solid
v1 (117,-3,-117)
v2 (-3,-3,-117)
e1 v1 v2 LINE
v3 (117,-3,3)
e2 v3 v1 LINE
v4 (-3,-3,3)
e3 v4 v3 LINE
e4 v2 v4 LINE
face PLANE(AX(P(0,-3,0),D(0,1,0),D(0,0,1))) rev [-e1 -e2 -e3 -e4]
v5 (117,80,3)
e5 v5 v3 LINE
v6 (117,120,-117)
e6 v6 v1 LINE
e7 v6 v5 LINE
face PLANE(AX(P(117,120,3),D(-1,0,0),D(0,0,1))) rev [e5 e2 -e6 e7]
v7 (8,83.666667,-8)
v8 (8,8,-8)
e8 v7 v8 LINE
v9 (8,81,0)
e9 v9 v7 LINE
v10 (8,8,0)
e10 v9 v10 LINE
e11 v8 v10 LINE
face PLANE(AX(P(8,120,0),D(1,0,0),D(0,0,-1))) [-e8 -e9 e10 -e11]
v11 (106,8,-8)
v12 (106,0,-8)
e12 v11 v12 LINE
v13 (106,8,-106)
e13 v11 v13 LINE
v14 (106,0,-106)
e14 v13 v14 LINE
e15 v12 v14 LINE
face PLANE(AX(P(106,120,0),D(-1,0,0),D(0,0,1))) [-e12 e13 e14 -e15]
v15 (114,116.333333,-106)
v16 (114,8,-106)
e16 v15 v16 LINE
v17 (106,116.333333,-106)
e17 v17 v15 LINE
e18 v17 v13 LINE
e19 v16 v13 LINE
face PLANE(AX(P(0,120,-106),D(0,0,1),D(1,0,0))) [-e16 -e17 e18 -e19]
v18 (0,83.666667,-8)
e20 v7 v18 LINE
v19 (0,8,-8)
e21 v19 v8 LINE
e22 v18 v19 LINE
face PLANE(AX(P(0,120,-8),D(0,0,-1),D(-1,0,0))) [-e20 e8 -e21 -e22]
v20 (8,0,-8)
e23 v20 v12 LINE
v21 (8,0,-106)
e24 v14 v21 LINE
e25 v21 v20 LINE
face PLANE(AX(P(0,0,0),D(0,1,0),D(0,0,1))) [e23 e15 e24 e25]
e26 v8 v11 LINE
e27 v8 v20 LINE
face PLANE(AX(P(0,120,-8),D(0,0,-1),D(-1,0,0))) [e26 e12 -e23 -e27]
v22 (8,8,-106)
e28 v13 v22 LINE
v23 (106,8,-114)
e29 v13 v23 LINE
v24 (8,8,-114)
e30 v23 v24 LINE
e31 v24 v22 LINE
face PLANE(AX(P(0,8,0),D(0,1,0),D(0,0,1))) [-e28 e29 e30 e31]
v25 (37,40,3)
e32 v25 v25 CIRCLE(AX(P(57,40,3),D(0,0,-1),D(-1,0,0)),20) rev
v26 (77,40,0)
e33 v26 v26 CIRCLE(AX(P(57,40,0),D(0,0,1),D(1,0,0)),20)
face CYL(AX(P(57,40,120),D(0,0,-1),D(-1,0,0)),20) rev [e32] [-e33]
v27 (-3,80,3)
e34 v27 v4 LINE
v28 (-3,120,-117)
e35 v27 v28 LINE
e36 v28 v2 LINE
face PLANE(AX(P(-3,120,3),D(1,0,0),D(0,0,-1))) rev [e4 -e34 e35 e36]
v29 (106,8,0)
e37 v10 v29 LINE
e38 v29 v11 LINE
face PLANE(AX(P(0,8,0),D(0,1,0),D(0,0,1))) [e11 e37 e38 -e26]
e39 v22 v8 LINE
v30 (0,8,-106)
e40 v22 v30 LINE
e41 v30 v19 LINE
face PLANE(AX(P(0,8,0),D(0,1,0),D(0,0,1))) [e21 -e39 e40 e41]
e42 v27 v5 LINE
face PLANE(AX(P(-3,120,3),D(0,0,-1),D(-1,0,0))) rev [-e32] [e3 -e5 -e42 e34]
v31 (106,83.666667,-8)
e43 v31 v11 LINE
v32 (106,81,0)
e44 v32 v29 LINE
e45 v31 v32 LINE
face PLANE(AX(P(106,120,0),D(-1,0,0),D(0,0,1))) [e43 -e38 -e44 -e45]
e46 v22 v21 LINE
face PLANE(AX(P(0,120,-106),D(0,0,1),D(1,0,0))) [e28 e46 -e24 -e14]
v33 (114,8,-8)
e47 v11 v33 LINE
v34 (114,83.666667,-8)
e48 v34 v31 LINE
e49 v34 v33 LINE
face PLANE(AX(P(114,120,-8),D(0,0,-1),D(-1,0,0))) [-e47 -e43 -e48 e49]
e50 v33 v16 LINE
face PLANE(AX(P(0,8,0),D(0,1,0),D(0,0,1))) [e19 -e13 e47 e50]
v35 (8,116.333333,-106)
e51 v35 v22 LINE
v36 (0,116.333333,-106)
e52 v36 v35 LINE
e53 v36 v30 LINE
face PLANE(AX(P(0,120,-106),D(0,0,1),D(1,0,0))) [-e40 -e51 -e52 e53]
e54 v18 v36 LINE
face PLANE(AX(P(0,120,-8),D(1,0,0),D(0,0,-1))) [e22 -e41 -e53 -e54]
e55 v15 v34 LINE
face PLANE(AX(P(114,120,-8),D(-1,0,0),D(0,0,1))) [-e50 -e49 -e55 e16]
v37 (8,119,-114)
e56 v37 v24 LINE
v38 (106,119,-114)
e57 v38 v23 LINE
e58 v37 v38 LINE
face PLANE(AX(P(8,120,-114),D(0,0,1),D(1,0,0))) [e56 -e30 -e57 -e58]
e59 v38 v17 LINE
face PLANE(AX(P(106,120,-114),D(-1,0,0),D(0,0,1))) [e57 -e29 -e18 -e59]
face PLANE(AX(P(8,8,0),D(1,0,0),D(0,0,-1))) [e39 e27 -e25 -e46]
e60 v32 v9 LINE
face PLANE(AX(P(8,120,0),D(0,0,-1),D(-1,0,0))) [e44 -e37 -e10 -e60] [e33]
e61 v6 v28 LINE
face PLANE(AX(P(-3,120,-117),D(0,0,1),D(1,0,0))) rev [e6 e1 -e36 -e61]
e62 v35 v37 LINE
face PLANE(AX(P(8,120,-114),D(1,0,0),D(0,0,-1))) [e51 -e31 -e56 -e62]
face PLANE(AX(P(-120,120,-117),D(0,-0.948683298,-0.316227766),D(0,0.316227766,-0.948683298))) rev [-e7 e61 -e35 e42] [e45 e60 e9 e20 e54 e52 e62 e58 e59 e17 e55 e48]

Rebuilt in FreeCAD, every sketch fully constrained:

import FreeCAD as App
import Part
import Sketcher
Q = App.Units.Quantity


def add_polygon(sketch, points):
    """Adds a closed chain of lines whose ends are joined by coincident constraints."""
    first, n = sketch.GeometryCount, len(points)
    for a, b in zip(points, points[1:] + points[:1]):
        sketch.addGeometry(Part.LineSegment(App.Vector(*a, 0), App.Vector(*b, 0)), False)
    for i in range(n):
        sketch.addConstraint(Sketcher.Constraint("Coincident", first + i, 2, first + (i + 1) % n, 1))

doc = App.newDocument("Part")
body = doc.addObject("PartDesign::Body", "Body")

# Sketch on XZ plane
sketch1 = body.newObject("Sketcher::SketchObject", "Sketch")
sketch1.AttachmentSupport = (doc.getObject("XZ_Plane"), [""])
sketch1.MapMode = "FlatFace"
add_polygon(sketch1, [(-3, -117), (-3, 3), (117, 3), (117, -117)])  # lines 0-3
add_polygon(sketch1, [(106, 0), (8, 0), (8, -8), (0, -8), (0, -106), (8, -106), (8, -114), (106, -114), (106, -106), (114, -106), (114, -8), (106, -8)])  # lines 4-15
sketch1.addConstraint([
    Sketcher.Constraint("Vertical", 0),
    Sketcher.Constraint("Horizontal", 1),
    Sketcher.Constraint("Vertical", 2),
    Sketcher.Constraint("Horizontal", 3),
    Sketcher.Constraint("Horizontal", 4),
    Sketcher.Constraint("Vertical", 5),
    Sketcher.Constraint("Horizontal", 6),
    Sketcher.Constraint("Vertical", 7),
    Sketcher.Constraint("Horizontal", 8),
    Sketcher.Constraint("Vertical", 9),
    Sketcher.Constraint("Horizontal", 10),
    Sketcher.Constraint("Vertical", 11),
    Sketcher.Constraint("Horizontal", 12),
    Sketcher.Constraint("Vertical", 13),
    Sketcher.Constraint("Horizontal", 14),
    Sketcher.Constraint("Vertical", 15),
    Sketcher.Constraint("PointOnObject", 4, 2, -1),
    Sketcher.Constraint("PointOnObject", 6, 2, -2),
    Sketcher.Constraint("Horizontal", 8, 2, 11, 2),
    Sketcher.Constraint("Horizontal", 6, 2, 13, 2),
    Sketcher.Constraint("Vertical", 5, 2, 8, 2),
    Sketcher.Constraint("Vertical", 11, 2, 14, 2),
    Sketcher.Constraint("Equal", 8, 12),
    Sketcher.Constraint("Equal", 3, 0),
    Sketcher.Constraint("Equal", 14, 5),
    Sketcher.Constraint("Equal", 10, 7),
    Sketcher.Constraint("Equal", 5, 9),
    Sketcher.Constraint("DistanceX", 1, 1, 1, 2, Q("120 mm")),
    Sketcher.Constraint("DistanceX", 4, 2, 4, 1, Q("98 mm")),
    Sketcher.Constraint("DistanceX", 6, 2, 6, 1, Q("8 mm")),
    Sketcher.Constraint("DistanceX", 0, 2, -1, 1, Q("3 mm")),
    Sketcher.Constraint("DistanceY", -1, 1, 0, 2, Q("3 mm")),
])
pad1 = body.newObject("PartDesign::Pad", "Pad")
pad1.Profile = sketch1
pad1.Length = 120
pad1.Reversed = True

# Sketch on YZ plane
sketch2 = body.newObject("Sketcher::SketchObject", "Sketch001")
sketch2.AttachmentSupport = (doc.getObject("YZ_Plane"), [""])
sketch2.MapMode = "FlatFace"
add_polygon(sketch2, [(80, 3), (120, -117), (120, 3)])  # lines 0-2
sketch2.addConstraint([
    Sketcher.Constraint("Vertical", 1),
    Sketcher.Constraint("Horizontal", 2),
    Sketcher.Constraint("DistanceX", 2, 2, 2, 1, Q("40 mm")),
    Sketcher.Constraint("DistanceY", 1, 1, 1, 2, Q("120 mm")),
    Sketcher.Constraint("DistanceX", -1, 1, 0, 2, Q("120 mm")),
    Sketcher.Constraint("DistanceY", 0, 2, -1, 1, Q("117 mm")),
])
pocket1 = body.newObject("PartDesign::Pocket", "Pocket")
pocket1.Profile = sketch2
pocket1.Type = "ThroughAll"
pocket1.Midplane = True

# Sketch on XY plane
sketch3 = body.newObject("Sketcher::SketchObject", "Sketch002")
sketch3.AttachmentSupport = (doc.getObject("XY_Plane"), [""])
sketch3.MapMode = "FlatFace"
sketch3.addGeometry(Part.Circle(App.Vector(57, 40, 0), App.Vector(0, 0, 1), 20), False)
sketch3.addConstraint([
    Sketcher.Constraint("Diameter", 0, Q("40 mm")),
    Sketcher.Constraint("DistanceX", -1, 1, 0, 3, Q("57 mm")),
    Sketcher.Constraint("DistanceY", -1, 1, 0, 3, Q("40 mm")),
])
pocket2 = body.newObject("PartDesign::Pocket", "Pocket001")
pocket2.Profile = sketch3
pocket2.Length = 120
pocket2.Reversed = True

# Sketch on XZ plane
sketch4 = body.newObject("Sketcher::SketchObject", "Sketch003")
sketch4.AttachmentSupport = (doc.getObject("XZ_Plane"), [""])
sketch4.MapMode = "FlatFace"
add_polygon(sketch4, [(-3, -117), (-3, 3), (117, 3), (117, -117)])  # lines 0-3
sketch4.addConstraint([
    Sketcher.Constraint("Vertical", 0),
    Sketcher.Constraint("Horizontal", 1),
    Sketcher.Constraint("Vertical", 2),
    Sketcher.Constraint("Horizontal", 3),
    Sketcher.Constraint("Equal", 3, 0),
    Sketcher.Constraint("DistanceX", 1, 1, 1, 2, Q("120 mm")),
    Sketcher.Constraint("DistanceX", 0, 2, -1, 1, Q("3 mm")),
    Sketcher.Constraint("DistanceY", -1, 1, 0, 2, Q("3 mm")),
])
pad2 = body.newObject("PartDesign::Pad", "Pad001")
pad2.Profile = sketch4
pad2.Length = 3

# Sketch on XZ plane
sketch5 = body.newObject("Sketcher::SketchObject", "Sketch004")
sketch5.AttachmentSupport = (doc.getObject("XZ_Plane"), [""])
sketch5.MapMode = "FlatFace"
add_polygon(sketch5, [(8, -114), (8, -106), (106, -106), (106, -114)])  # lines 0-3
add_polygon(sketch5, [(106, -106), (106, -8), (114, -8), (114, -106)])  # lines 4-7
add_polygon(sketch5, [(8, -8), (8, 0), (106, 0), (106, -8)])  # lines 8-11
add_polygon(sketch5, [(0, -106), (0, -8), (8, -8), (8, -106)])  # lines 12-15
sketch5.addConstraint([
    Sketcher.Constraint("Vertical", 0),
    Sketcher.Constraint("Horizontal", 1),
    Sketcher.Constraint("Vertical", 2),
    Sketcher.Constraint("Horizontal", 3),
    Sketcher.Constraint("Vertical", 4),
    Sketcher.Constraint("Horizontal", 5),
    Sketcher.Constraint("Vertical", 6),
    Sketcher.Constraint("Horizontal", 7),
    Sketcher.Constraint("Vertical", 8),
    Sketcher.Constraint("Horizontal", 9),
    Sketcher.Constraint("Vertical", 10),
    Sketcher.Constraint("Horizontal", 11),
    Sketcher.Constraint("Vertical", 12),
    Sketcher.Constraint("Horizontal", 13),
    Sketcher.Constraint("Vertical", 14),
    Sketcher.Constraint("Horizontal", 15),
    Sketcher.Constraint("Coincident", 7, 2, 1, 2),
    Sketcher.Constraint("Coincident", 10, 2, 4, 2),
    Sketcher.Constraint("Coincident", 13, 2, 11, 2),
    Sketcher.Constraint("Coincident", 14, 2, 0, 2),
    Sketcher.Constraint("PointOnObject", 8, 2, -1),
    Sketcher.Constraint("PointOnObject", 12, 2, -2),
    Sketcher.Constraint("Equal", 7, 13),
    Sketcher.Constraint("Equal", 15, 0),
    Sketcher.Constraint("Equal", 11, 4),
    Sketcher.Constraint("Equal", 2, 8),
    Sketcher.Constraint("DistanceX", 1, 1, 1, 2, Q("98 mm")),
    Sketcher.Constraint("DistanceX", 5, 1, 5, 2, Q("8 mm")),
])
pad3 = body.newObject("PartDesign::Pad", "Pad002")
pad3.Profile = sketch5
pad3.Length = 8
pad3.Reversed = True

doc.recompute()
